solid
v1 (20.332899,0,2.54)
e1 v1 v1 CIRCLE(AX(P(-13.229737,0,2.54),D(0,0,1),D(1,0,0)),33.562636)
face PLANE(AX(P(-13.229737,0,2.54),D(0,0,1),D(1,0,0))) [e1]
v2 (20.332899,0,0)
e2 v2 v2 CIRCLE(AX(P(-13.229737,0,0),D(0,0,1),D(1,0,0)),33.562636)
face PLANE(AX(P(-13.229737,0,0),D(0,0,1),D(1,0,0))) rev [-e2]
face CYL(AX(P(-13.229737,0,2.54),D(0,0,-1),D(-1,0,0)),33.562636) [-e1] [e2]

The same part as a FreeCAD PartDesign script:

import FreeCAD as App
import Part
import Sketcher
from FreeCAD import Vector
Q = App.Units.Quantity

doc = App.newDocument("Part")
body = doc.addObject("PartDesign::Body", "Body")

# Sketch on XY plane
sketch1 = body.newObject("Sketcher::SketchObject", "Sketch")
sketch1.AttachmentSupport = (doc.getObject("XY_Plane"), [""])
sketch1.MapMode = "FlatFace"
sketch1.addGeometry(Part.Circle(Vector(-13, 0, 0), Vector(0, 0, 1), 34), False)
sketch1.addConstraint(Sketcher.Constraint("PointOnObject", 0, 3, -1))
sketch1.addConstraint(Sketcher.Constraint("Diameter", 0, 67.125272))
sketch1.addConstraint(Sketcher.Constraint("DistanceX", 0, 3, -1, 1, 13.229737))
pad1 = body.newObject("PartDesign::Pad", "Pad")
pad1.Profile = sketch1
pad1.Length = Q("0.1 in")

doc.recompute()
